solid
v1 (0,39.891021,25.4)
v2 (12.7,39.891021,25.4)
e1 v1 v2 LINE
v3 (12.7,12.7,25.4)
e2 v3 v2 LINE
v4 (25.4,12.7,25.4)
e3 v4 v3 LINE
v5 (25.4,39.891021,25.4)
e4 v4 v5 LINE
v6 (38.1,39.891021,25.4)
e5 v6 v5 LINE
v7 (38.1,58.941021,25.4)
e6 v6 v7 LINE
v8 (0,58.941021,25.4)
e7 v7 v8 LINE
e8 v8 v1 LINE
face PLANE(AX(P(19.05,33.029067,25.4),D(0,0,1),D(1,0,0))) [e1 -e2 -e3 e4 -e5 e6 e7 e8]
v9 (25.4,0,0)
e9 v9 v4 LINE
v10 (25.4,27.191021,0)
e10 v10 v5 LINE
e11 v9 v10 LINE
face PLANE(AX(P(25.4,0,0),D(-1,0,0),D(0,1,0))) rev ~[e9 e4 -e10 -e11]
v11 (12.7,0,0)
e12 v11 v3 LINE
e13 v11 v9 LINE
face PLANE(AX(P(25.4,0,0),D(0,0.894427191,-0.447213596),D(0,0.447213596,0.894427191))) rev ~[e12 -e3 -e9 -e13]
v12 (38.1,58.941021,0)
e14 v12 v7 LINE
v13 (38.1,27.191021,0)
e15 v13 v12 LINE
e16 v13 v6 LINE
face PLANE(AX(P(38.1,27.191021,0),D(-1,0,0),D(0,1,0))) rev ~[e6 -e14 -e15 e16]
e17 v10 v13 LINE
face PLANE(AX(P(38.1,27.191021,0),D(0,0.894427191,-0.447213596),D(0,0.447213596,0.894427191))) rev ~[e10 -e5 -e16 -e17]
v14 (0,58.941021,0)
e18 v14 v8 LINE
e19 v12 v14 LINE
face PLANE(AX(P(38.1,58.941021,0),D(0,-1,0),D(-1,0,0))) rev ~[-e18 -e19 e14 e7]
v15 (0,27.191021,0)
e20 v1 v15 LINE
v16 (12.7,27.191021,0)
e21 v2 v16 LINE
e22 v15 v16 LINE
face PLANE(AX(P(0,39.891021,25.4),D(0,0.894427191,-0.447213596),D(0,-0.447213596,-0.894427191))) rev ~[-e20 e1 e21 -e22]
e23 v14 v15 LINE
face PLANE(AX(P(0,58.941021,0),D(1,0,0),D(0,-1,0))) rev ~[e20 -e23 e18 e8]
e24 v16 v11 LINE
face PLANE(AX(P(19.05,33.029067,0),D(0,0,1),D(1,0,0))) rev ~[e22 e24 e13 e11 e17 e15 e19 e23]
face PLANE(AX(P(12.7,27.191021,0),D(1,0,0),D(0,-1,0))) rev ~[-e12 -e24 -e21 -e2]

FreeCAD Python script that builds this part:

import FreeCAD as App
import Part
import Sketcher
Q = App.Units.Quantity


def add_polygon(sketch, points):
    """Adds a closed chain of lines whose ends are joined by coincident constraints."""
    first, n = sketch.GeometryCount, len(points)
    for a, b in zip(points, points[1:] + points[:1]):
        sketch.addGeometry(Part.LineSegment(App.Vector(*a, 0), App.Vector(*b, 0)), False)
    for i in range(n):
        sketch.addConstraint(Sketcher.Constraint("Coincident", first + i, 2, first + (i + 1) % n, 1))

doc = App.newDocument("Part")
params = doc.addObject("Spreadsheet::Sheet", "Params")
for row, (alias, value) in enumerate([
    ("sketch1_width", "0.5 in"),
    ("sketch1_height", "1.25 in"),
    ("pad1_length", "1 in"),
    ("sketch2_height", "1 in"),
    ("sketch2_width", "0.5 in"),
    ("pocket1_length", "0.5 in"),
    ("sketch3_height", "1 in"),
    ("sketch3_width", "0.5 in"),
    ("pocket2_length", "1 in"),
    ("sketch4_height", "1 in"),
    ("sketch4_width", "0.5 in"),
    ("pocket3_length", "0.5 in"),
], start=1):
    params.set(f"A{row}", alias)
    params.set(f"B{row}", "=" + value)
    params.setAlias(f"B{row}", alias)

body = doc.addObject("PartDesign::Body", "Body")

# Sketch on XY plane
sketch1 = doc.addObject("Sketcher::SketchObject", "Sketch")
body.addObject(sketch1)
sketch1.AttachmentSupport = (doc.XY_Plane, [""])
sketch1.MapMode = "FlatFace"
add_polygon(sketch1, [(13, 27), (13, 0), (25, 0), (25, 27), (38, 27), (38, 59), (0, 59), (0, 27)])  # lines 0-7
sketch1.addConstraint(Sketcher.Constraint("Vertical", 0))
sketch1.addConstraint(Sketcher.Constraint("Horizontal", 1))
sketch1.addConstraint(Sketcher.Constraint("Vertical", 2))
sketch1.addConstraint(Sketcher.Constraint("Horizontal", 3))
sketch1.addConstraint(Sketcher.Constraint("Vertical", 4))
sketch1.addConstraint(Sketcher.Constraint("Horizontal", 5))
sketch1.addConstraint(Sketcher.Constraint("Vertical", 6))
sketch1.addConstraint(Sketcher.Constraint("Horizontal", 7))
sketch1.addConstraint(Sketcher.Constraint("PointOnObject", 0, 2, -1))
sketch1.addConstraint(Sketcher.Constraint("PointOnObject", 5, 2, -2))
sketch1.addConstraint(Sketcher.Constraint("Horizontal", 3, 2, 6, 2))
sketch1.addConstraint(Sketcher.Constraint("Equal", 1, 3))
sketch1.addConstraint(Sketcher.Constraint("Equal", 3, 7))
sketch1.addConstraint(Sketcher.Constraint("DistanceX", 1, 1, 1, 2, Q("0.5 in")))
sketch1.addConstraint(Sketcher.Constraint("DistanceY", 4, 1, 4, 2, Q("1.25 in")))
sketch1.addConstraint(Sketcher.Constraint("DistanceY", 0, 2, 0, 1, 27.191021))
sketch1.setExpression("Constraints[21]", "Params.sketch1_width")
sketch1.setExpression("Constraints[22]", "Params.sketch1_height")
pad1 = doc.addObject("PartDesign::Pad", "Pad")
body.addObject(pad1)
pad1.Profile = sketch1
pad1.setExpression("Length", "Params.pad1_length")

# Sketch on YZ plane
sketch2 = doc.addObject("Sketcher::SketchObject", "Sketch001")
body.addObject(sketch2)
sketch2.AttachmentSupport = (doc.YZ_Plane, [""])
sketch2.MapMode = "FlatFace"
sketch2.AttachmentOffset = App.Placement(App.Vector(0, 0, 1.5 * 25.4), App.Rotation())
add_polygon(sketch2, [(27, 25), (27, 0), (40, 25)])  # lines 0-2
sketch2.addConstraint(Sketcher.Constraint("Vertical", 0))
sketch2.addConstraint(Sketcher.Constraint("Horizontal", 2))
sketch2.addConstraint(Sketcher.Constraint("PointOnObject", 0, 2, -1))
sketch2.addConstraint(Sketcher.Constraint("DistanceY", 0, 2, 0, 1, Q("1 in")))
sketch2.addConstraint(Sketcher.Constraint("DistanceX", 2, 2, 2, 1, Q("0.5 in")))
sketch2.addConstraint(Sketcher.Constraint("DistanceX", -1, 1, 0, 2, 27.191021))
sketch2.setExpression("Constraints[6]", "Params.sketch2_height")
sketch2.setExpression("Constraints[7]", "Params.sketch2_width")
pocket1 = doc.addObject("PartDesign::Pocket", "Pocket")
body.addObject(pocket1)
pocket1.Profile = sketch2
pocket1.setExpression("Length", "Params.pocket1_length")

# Sketch on YZ plane
sketch3 = doc.addObject("Sketcher::SketchObject", "Sketch002")
body.addObject(sketch3)
sketch3.AttachmentSupport = (doc.YZ_Plane, [""])
sketch3.MapMode = "FlatFace"
sketch3.AttachmentOffset = App.Placement(App.Vector(0, 0, 1 * 25.4), App.Rotation())
add_polygon(sketch3, [(0, 25), (0, 0), (13, 25)])  # lines 0-2
sketch3.addConstraint(Sketcher.Constraint("Vertical", 0))
sketch3.addConstraint(Sketcher.Constraint("Horizontal", 2))
sketch3.addConstraint(Sketcher.Constraint("Coincident", 0, 2, -1, 1))
sketch3.addConstraint(Sketcher.Constraint("DistanceY", 0, 2, 0, 1, Q("1 in")))
sketch3.addConstraint(Sketcher.Constraint("DistanceX", 2, 2, 2, 1, Q("0.5 in")))
sketch3.setExpression("Constraints[6]", "Params.sketch3_height")
sketch3.setExpression("Constraints[7]", "Params.sketch3_width")
pocket2 = doc.addObject("PartDesign::Pocket", "Pocket001")
body.addObject(pocket2)
pocket2.Profile = sketch3
pocket2.setExpression("Length", "Params.pocket2_length")

# Sketch on YZ plane
sketch4 = doc.addObject("Sketcher::SketchObject", "Sketch003")
body.addObject(sketch4)
sketch4.AttachmentSupport = (doc.YZ_Plane, [""])
sketch4.MapMode = "FlatFace"
add_polygon(sketch4, [(27, 25), (40, 25), (27, 0)])  # lines 0-2
sketch4.addConstraint(Sketcher.Constraint("Horizontal", 0))
sketch4.addConstraint(Sketcher.Constraint("Vertical", 2))
sketch4.addConstraint(Sketcher.Constraint("PointOnObject", 1, 2, -1))
sketch4.addConstraint(Sketcher.Constraint("DistanceY", 2, 1, 2, 2, Q("1 in")))
sketch4.addConstraint(Sketcher.Constraint("DistanceX", 0, 1, 0, 2, Q("0.5 in")))
sketch4.addConstraint(Sketcher.Constraint("DistanceX", -1, 1, 0, 2, 39.891021))
sketch4.setExpression("Constraints[6]", "Params.sketch4_height")
sketch4.setExpression("Constraints[7]", "Params.sketch4_width")
pocket3 = doc.addObject("PartDesign::Pocket", "Pocket002")
body.addObject(pocket3)
pocket3.Profile = sketch4
pocket3.setExpression("Length", "Params.pocket3_length")
pocket3.Reversed = True

doc.recompute()
